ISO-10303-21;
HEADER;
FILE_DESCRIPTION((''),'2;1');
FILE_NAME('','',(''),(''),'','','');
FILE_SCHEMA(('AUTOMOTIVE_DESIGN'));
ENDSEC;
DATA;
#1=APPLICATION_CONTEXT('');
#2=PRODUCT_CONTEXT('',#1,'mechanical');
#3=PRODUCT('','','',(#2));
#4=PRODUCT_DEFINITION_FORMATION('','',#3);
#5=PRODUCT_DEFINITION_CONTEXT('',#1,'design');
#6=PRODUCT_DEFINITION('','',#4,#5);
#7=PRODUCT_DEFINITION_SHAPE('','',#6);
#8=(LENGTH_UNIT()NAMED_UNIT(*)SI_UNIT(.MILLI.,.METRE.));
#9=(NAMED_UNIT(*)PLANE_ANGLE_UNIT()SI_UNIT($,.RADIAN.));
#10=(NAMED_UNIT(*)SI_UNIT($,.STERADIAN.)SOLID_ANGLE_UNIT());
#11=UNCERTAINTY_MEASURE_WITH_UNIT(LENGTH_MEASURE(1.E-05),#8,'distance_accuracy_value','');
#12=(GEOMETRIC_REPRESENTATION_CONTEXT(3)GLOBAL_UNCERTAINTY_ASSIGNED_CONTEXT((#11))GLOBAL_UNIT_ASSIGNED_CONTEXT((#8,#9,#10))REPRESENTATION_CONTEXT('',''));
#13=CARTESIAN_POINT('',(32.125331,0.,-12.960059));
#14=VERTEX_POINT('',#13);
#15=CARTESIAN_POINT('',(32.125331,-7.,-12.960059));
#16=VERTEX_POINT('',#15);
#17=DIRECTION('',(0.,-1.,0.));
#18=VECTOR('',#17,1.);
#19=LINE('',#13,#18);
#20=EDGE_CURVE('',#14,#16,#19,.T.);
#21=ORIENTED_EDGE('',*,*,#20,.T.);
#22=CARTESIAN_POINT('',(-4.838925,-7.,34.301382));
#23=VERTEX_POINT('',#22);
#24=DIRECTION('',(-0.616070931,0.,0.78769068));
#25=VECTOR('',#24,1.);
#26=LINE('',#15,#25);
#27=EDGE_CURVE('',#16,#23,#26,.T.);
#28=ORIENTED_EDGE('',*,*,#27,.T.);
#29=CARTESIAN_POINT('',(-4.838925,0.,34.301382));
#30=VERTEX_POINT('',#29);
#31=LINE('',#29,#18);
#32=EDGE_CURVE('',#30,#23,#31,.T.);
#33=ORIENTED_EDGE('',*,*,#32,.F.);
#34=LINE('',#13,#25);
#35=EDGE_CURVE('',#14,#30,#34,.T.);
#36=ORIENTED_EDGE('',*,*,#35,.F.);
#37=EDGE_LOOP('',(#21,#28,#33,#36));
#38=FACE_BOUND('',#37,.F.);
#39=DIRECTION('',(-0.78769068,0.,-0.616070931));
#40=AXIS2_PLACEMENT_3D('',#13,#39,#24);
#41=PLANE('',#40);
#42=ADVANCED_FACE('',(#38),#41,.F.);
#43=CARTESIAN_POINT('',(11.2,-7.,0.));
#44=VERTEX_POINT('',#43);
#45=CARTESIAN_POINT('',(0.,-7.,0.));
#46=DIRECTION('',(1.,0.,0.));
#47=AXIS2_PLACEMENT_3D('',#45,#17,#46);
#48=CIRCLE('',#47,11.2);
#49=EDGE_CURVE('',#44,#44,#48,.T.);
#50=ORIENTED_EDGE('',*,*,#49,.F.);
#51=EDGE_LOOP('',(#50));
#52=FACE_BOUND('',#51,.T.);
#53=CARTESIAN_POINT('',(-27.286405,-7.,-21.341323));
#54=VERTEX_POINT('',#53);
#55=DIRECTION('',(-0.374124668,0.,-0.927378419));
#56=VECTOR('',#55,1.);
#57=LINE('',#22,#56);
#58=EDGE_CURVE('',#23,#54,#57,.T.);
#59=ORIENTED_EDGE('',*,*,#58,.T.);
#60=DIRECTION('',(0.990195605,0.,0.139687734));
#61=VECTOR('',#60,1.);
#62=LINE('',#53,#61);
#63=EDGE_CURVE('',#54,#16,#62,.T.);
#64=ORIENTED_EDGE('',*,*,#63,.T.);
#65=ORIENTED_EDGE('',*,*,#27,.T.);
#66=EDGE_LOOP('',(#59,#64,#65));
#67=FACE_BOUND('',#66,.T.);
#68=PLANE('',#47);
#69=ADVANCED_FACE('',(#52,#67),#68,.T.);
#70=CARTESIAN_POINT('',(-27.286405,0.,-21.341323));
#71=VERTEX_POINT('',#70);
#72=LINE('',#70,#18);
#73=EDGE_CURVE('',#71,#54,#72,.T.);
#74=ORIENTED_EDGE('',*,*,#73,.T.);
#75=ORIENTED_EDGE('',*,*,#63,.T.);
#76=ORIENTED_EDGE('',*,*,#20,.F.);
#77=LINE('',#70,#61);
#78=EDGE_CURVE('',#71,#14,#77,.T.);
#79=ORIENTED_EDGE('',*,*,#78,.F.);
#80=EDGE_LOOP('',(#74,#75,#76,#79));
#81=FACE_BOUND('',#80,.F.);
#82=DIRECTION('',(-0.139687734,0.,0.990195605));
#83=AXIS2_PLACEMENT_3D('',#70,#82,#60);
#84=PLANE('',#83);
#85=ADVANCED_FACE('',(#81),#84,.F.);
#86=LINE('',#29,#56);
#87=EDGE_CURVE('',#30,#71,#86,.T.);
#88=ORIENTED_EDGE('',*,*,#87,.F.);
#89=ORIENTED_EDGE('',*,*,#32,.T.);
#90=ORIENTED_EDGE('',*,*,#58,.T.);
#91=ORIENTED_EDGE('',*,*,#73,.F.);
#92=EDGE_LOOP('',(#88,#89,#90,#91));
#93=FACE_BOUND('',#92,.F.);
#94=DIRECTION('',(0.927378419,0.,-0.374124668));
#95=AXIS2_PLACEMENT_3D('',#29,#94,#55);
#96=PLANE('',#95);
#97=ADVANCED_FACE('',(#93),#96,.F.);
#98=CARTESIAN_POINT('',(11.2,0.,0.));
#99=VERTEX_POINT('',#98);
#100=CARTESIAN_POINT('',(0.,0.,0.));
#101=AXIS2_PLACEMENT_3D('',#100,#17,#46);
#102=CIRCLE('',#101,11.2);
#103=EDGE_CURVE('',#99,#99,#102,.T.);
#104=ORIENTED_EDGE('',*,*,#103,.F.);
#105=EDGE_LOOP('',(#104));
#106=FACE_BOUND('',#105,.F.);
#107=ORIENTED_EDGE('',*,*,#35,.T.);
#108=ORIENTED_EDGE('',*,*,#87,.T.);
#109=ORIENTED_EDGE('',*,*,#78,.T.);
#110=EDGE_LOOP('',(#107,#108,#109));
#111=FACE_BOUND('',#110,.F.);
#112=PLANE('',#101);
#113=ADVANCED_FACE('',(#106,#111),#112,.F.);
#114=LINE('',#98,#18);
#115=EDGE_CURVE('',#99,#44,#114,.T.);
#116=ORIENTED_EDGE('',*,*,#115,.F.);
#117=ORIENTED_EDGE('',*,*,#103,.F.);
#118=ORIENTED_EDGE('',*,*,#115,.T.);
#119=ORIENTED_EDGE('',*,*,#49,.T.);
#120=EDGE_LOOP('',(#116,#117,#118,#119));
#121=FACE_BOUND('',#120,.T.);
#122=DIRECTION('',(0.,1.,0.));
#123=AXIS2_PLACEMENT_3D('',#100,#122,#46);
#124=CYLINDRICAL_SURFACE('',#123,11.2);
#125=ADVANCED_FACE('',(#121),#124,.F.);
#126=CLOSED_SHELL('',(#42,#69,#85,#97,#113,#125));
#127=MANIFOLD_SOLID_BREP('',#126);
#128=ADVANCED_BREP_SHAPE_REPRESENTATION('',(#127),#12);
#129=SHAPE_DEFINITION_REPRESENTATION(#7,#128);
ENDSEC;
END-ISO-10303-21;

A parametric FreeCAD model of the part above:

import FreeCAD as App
import Part
import Sketcher
Q = App.Units.Quantity

doc = App.newDocument("Part")
params = doc.addObject("Spreadsheet::Sheet", "Params")
for row, (alias, value) in enumerate([
    ("sketch1_diameter", "22.4 mm"),
    ("sketch1_length", "60 mm"),
    ("pad1_length", "7 mm"),
], start=1):
    params.set(f"A{row}", alias)
    params.set(f"B{row}", "=" + value)
    params.setAlias(f"B{row}", alias)

body = doc.addObject("PartDesign::Body", "Body")

# Sketch on XZ plane
sketch1 = body.newObject("Sketcher::SketchObject", "Sketch")
sketch1.AttachmentSupport = (doc.getObject("XZ_Plane"), [""])
sketch1.MapMode = "FlatFace"
sketch1.addGeometry([
    Part.LineSegment(App.Vector(32, -13, 0), App.Vector(-5, 34, 0)),
    Part.LineSegment(App.Vector(-5, 34, 0), App.Vector(-27, -21, 0)),
    Part.LineSegment(App.Vector(-27, -21, 0), App.Vector(32, -13, 0)),
    Part.Circle(App.Vector(0, 0, 0), App.Vector(0, 0, 1), 11),
], False)
sketch1.addConstraint([
    Sketcher.Constraint("Coincident", 0, 2, 1, 1),
    Sketcher.Constraint("Coincident", 1, 2, 2, 1),
    Sketcher.Constraint("Coincident", 2, 2, 0, 1),
    Sketcher.Constraint("Coincident", 3, 3, -1, 1),
    Sketcher.Constraint("Equal", 0, 1),
    Sketcher.Constraint("Equal", 1, 2),
    Sketcher.Constraint("Diameter", 3, Q("22.4 mm")),
    Sketcher.Constraint("Distance", 0, Q("60 mm")),
    Sketcher.Constraint("DistanceY", -1, 1, 0, 2, Q("34.301382 mm")),
    Sketcher.Constraint("DistanceX", -1, 1, 2, 2, Q("32.125331 mm")),
    Sketcher.Constraint("DistanceY", 2, 2, -1, 1, Q("12.960059 mm")),
])
sketch1.setExpression("Constraints[6]", "Params.sketch1_diameter")
sketch1.setExpression("Constraints[7]", "Params.sketch1_length")
pad1 = body.newObject("PartDesign::Pad", "Pad")
pad1.Profile = sketch1
pad1.setExpression("Length", "Params.pad1_length")

doc.recompute()
